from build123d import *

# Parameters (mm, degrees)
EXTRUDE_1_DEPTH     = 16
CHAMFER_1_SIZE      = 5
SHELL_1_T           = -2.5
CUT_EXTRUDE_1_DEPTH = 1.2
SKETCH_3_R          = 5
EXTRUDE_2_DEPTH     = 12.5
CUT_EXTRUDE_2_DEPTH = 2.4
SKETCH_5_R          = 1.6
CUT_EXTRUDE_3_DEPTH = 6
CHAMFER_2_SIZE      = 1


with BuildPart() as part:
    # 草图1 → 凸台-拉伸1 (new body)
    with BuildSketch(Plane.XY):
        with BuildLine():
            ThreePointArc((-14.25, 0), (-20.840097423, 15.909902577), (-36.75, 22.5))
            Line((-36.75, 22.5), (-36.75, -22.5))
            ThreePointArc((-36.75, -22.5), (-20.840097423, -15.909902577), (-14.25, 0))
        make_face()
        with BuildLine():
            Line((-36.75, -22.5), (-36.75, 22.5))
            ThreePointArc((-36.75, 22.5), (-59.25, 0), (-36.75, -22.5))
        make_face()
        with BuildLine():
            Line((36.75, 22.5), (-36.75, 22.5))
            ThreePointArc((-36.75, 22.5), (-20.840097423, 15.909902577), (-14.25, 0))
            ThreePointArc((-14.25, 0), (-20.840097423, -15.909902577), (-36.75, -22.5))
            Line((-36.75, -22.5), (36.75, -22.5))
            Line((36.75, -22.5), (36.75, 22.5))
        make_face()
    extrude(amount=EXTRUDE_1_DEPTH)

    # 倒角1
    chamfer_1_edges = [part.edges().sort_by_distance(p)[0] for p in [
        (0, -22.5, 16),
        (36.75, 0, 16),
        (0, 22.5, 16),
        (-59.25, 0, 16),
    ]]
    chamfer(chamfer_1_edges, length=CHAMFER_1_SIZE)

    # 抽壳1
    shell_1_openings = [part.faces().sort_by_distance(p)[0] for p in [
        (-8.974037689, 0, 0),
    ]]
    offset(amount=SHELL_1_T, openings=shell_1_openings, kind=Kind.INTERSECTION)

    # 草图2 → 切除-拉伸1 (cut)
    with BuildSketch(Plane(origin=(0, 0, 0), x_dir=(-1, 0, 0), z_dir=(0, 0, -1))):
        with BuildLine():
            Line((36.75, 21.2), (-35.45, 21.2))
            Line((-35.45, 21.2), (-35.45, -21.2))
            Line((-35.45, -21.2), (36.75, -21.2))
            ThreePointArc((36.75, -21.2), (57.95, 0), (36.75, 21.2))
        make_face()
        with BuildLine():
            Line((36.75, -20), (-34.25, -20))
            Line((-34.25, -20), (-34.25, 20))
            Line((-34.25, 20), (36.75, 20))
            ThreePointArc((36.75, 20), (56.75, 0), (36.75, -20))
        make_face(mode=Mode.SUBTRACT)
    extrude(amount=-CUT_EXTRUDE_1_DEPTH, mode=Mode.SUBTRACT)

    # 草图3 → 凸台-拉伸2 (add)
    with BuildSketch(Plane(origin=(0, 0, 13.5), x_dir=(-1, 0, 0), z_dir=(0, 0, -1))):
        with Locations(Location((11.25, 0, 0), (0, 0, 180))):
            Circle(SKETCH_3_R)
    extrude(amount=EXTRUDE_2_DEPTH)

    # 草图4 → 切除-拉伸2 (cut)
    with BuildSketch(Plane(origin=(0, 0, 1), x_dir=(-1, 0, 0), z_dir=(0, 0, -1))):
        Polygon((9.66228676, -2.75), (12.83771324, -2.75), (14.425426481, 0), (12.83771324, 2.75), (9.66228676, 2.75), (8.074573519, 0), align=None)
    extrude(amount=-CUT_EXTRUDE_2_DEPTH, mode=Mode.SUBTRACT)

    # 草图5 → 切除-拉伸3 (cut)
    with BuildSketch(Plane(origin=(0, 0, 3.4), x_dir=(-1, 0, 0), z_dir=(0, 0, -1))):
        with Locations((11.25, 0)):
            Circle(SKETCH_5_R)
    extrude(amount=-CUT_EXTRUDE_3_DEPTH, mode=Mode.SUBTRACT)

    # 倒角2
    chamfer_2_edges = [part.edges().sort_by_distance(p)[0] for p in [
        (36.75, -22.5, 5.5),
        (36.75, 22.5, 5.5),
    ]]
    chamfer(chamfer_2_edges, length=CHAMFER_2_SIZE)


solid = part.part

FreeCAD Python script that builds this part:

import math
import FreeCAD as App
import Part
import Sketcher

V = App.Vector
Q = App.Units.Quantity


def edges_at(feature, points):
    """Names of the edges that pass closest to the given points."""
    edges = feature.Shape.Edges
    near = lambda p: min(range(len(edges)), key=lambda i: edges[i].distToShape(Part.Vertex(*p))[0])
    return sorted({f"Edge{near(p) + 1}" for p in points})


def faces_at(feature, points):
    """Names of the faces that lie closest to the given points."""
    faces = feature.Shape.Faces
    near = lambda p: min(range(len(faces)), key=lambda i: faces[i].distToShape(Part.Vertex(*p))[0])
    return sorted({f"Face{near(p) + 1}" for p in points})

doc = App.newDocument("Part")
body = doc.addObject("PartDesign::Body", "Body")

sketch1 = body.newObject("Sketcher::SketchObject", "Sketch")
sketch1.AttachmentSupport = (doc.getObject("XY_Plane"), [""])
sketch1.MapMode = "FlatFace"
sketch1.addGeometry([
    Part.ArcOfCircle(Part.Circle(V(-36.75, 0, 0), V(0, 0, 1), 22.5), math.radians(90), math.radians(270)),
    Part.LineSegment(V(-36.75, -22.5, 0), V(36.75, -22.5, 0)),
    Part.LineSegment(V(36.75, -22.5, 0), V(36.75, 22.5, 0)),
    Part.LineSegment(V(36.75, 22.5, 0), V(-36.75, 22.5, 0)),
], False)
sketch1.addConstraint([
    Sketcher.Constraint("Tangent", 0, 2, 1, 1),
    Sketcher.Constraint("Coincident", 1, 2, 2, 1),
    Sketcher.Constraint("Coincident", 2, 2, 3, 1),
    Sketcher.Constraint("Tangent", 3, 2, 0, 1),
    Sketcher.Constraint("Horizontal", 1),
    Sketcher.Constraint("Vertical", 2),
    Sketcher.Constraint("Horizontal", 3),
    Sketcher.Constraint("Symmetric", 0, 2, 2, 2, -1, 1),
    Sketcher.Constraint("Radius", 0, 22.5),
    Sketcher.Constraint("DistanceX", 1, 1, 1, 2, 73.5),
])
pad1 = body.newObject("PartDesign::Pad", "Pad")
pad1.Profile = sketch1
pad1.Length = 16
doc.recompute()

chamfer = body.newObject("PartDesign::Chamfer", "Chamfer")
chamfer.Base = (pad1, edges_at(pad1, [
    (0, -22.5, 16),
    (36.75, 0, 16),
    (0, 22.5, 16),
    (-59.25, 0, 16),
]))
chamfer.Size = 5
doc.recompute()

thickness = body.newObject("PartDesign::Thickness", "Thickness")
thickness.Base = (chamfer, faces_at(chamfer, [(-11.25, 0, 0)]))
thickness.Value = 2.5
thickness.Reversed = True
thickness.Join = "Intersection"

sketch2 = body.newObject("Sketcher::SketchObject", "Sketch001")
sketch2.AttachmentSupport = (doc.getObject("XY_Plane"), [""])
sketch2.MapMode = "FlatFace"
sketch2.addGeometry([
    Part.LineSegment(V(-36.75, 21.2, 0), V(35.45, 21.2, 0)),
    Part.LineSegment(V(35.45, 21.2, 0), V(35.45, -21.2, 0)),
    Part.LineSegment(V(35.45, -21.2, 0), V(-36.75, -21.2, 0)),
    Part.ArcOfCircle(Part.Circle(V(-36.75, 0, 0), V(0, 0, 1), 21.2), math.radians(90), math.radians(270)),
    Part.ArcOfCircle(Part.Circle(V(-36.75, 0, 0), V(0, 0, 1), 20), math.radians(90), math.radians(270)),
    Part.LineSegment(V(-36.75, -20, 0), V(34.25, -20, 0)),
    Part.LineSegment(V(34.25, -20, 0), V(34.25, 20, 0)),
    Part.LineSegment(V(34.25, 20, 0), V(-36.75, 20, 0)),
], False)
sketch2.addConstraint([
    Sketcher.Constraint("Coincident", 0, 2, 1, 1),
    Sketcher.Constraint("Coincident", 1, 2, 2, 1),
    Sketcher.Constraint("Tangent", 2, 2, 3, 2),
    Sketcher.Constraint("Tangent", 3, 1, 0, 1),
    Sketcher.Constraint("Tangent", 4, 2, 5, 1),
    Sketcher.Constraint("Coincident", 5, 2, 6, 1),
    Sketcher.Constraint("Coincident", 6, 2, 7, 1),
    Sketcher.Constraint("Tangent", 7, 2, 4, 1),
    Sketcher.Constraint("Horizontal", 0),
    Sketcher.Constraint("Vertical", 1),
    Sketcher.Constraint("Horizontal", 2),
    Sketcher.Constraint("Horizontal", 5),
    Sketcher.Constraint("Vertical", 6),
    Sketcher.Constraint("Horizontal", 7),
    Sketcher.Constraint("Coincident", 4, 3, 3, 3),
    Sketcher.Constraint("PointOnObject", 3, 3, -1),
    Sketcher.Constraint("Radius", 4, 20.0),
    Sketcher.Constraint("Radius", 3, 21.2),
    Sketcher.Constraint("DistanceX", 5, 1, 5, 2, 71.0),
    Sketcher.Constraint("DistanceX", 0, 1, 0, 2, 72.2),
    Sketcher.Constraint("DistanceX", 3, 3, -1, 1, 36.75),
])
pocket1 = body.newObject("PartDesign::Pocket", "Pocket")
pocket1.Profile = sketch2
pocket1.Length = 1.2
pocket1.Reversed = True

sketch3 = body.newObject("Sketcher::SketchObject", "Sketch002")
sketch3.AttachmentSupport = (doc.getObject("XY_Plane"), [""])
sketch3.MapMode = "FlatFace"
sketch3.AttachmentOffset = App.Placement(V(0, 0, 13.5), App.Rotation())
sketch3.addGeometry(Part.Circle(V(-11.25, 0, 0), V(0, 0, 1), 5), False)
sketch3.addConstraint([
    Sketcher.Constraint("PointOnObject", 0, 3, -1),
    Sketcher.Constraint("Diameter", 0, 10.0),
    Sketcher.Constraint("DistanceX", 0, 3, -1, 1, 11.25),
])
pad2 = body.newObject("PartDesign::Pad", "Pad001")
pad2.Profile = sketch3
pad2.Length = 12.5
pad2.Reversed = True

sketch4 = body.newObject("Sketcher::SketchObject", "Sketch003")
sketch4.AttachmentSupport = (doc.getObject("XY_Plane"), [""])
sketch4.MapMode = "FlatFace"
sketch4.AttachmentOffset = App.Placement(V(0, 0, 1), App.Rotation())
sketch4.addGeometry([
    Part.LineSegment(V(-9.662287, -2.75, 0), V(-12.837713, -2.75, 0)),
    Part.LineSegment(V(-12.837713, -2.75, 0), V(-14.425426, 0, 0)),
    Part.LineSegment(V(-14.425426, 0, 0), V(-12.837713, 2.75, 0)),
    Part.LineSegment(V(-12.837713, 2.75, 0), V(-9.662287, 2.75, 0)),
    Part.LineSegment(V(-9.662287, 2.75, 0), V(-8.074574, 0, 0)),
    Part.LineSegment(V(-8.074574, 0, 0), V(-9.662287, -2.75, 0)),
], False)
sketch4.addConstraint([
    Sketcher.Constraint("Coincident", 0, 2, 1, 1),
    Sketcher.Constraint("Coincident", 1, 2, 2, 1),
    Sketcher.Constraint("Coincident", 2, 2, 3, 1),
    Sketcher.Constraint("Coincident", 3, 2, 4, 1),
    Sketcher.Constraint("Coincident", 4, 2, 5, 1),
    Sketcher.Constraint("Coincident", 5, 2, 0, 1),
    Sketcher.Constraint("Horizontal", 0),
    Sketcher.Constraint("Horizontal", 3),
    Sketcher.Constraint("Symmetric", 0, 2, 2, 2, -1),
    Sketcher.Constraint("PointOnObject", 1, 2, -1),
    Sketcher.Constraint("PointOnObject", 4, 2, -1),
    Sketcher.Constraint("Parallel", 1, 4),
    Sketcher.Constraint("Parallel", 2, 5),
    Sketcher.Constraint("Angle", 1, Q("120 deg")),
    Sketcher.Constraint("DistanceY", 0, 2, 2, 2, 5.5),
    Sketcher.Constraint("DistanceX", 0, 2, 0, 1, 3.175426),
    Sketcher.Constraint("DistanceX", 0, 2, -1, 1, 12.837713),
])
pocket2 = body.newObject("PartDesign::Pocket", "Pocket001")
pocket2.Profile = sketch4
pocket2.Length = 2.4
pocket2.Reversed = True

sketch5 = body.newObject("Sketcher::SketchObject", "Sketch004")
sketch5.AttachmentSupport = (doc.getObject("XY_Plane"), [""])
sketch5.MapMode = "FlatFace"
sketch5.AttachmentOffset = App.Placement(V(0, 0, 3.4), App.Rotation())
sketch5.addGeometry(Part.Circle(V(-11.25, 0, 0), V(0, 0, 1), 1.6), False)
sketch5.addConstraint([
    Sketcher.Constraint("PointOnObject", 0, 3, -1),
    Sketcher.Constraint("Diameter", 0, 3.2),
    Sketcher.Constraint("DistanceX", 0, 3, -1, 1, 11.25),
])
pocket3 = body.newObject("PartDesign::Pocket", "Pocket002")
pocket3.Profile = sketch5
pocket3.Length = 6
pocket3.Reversed = True
doc.recompute()

chamfer2 = body.newObject("PartDesign::Chamfer", "Chamfer001")
chamfer2.Base = (pocket3, edges_at(pocket3, [(36.75, -22.5, 5.5), (36.75, 22.5, 5.5)]))
chamfer2.Size = 1

doc.recompute()
